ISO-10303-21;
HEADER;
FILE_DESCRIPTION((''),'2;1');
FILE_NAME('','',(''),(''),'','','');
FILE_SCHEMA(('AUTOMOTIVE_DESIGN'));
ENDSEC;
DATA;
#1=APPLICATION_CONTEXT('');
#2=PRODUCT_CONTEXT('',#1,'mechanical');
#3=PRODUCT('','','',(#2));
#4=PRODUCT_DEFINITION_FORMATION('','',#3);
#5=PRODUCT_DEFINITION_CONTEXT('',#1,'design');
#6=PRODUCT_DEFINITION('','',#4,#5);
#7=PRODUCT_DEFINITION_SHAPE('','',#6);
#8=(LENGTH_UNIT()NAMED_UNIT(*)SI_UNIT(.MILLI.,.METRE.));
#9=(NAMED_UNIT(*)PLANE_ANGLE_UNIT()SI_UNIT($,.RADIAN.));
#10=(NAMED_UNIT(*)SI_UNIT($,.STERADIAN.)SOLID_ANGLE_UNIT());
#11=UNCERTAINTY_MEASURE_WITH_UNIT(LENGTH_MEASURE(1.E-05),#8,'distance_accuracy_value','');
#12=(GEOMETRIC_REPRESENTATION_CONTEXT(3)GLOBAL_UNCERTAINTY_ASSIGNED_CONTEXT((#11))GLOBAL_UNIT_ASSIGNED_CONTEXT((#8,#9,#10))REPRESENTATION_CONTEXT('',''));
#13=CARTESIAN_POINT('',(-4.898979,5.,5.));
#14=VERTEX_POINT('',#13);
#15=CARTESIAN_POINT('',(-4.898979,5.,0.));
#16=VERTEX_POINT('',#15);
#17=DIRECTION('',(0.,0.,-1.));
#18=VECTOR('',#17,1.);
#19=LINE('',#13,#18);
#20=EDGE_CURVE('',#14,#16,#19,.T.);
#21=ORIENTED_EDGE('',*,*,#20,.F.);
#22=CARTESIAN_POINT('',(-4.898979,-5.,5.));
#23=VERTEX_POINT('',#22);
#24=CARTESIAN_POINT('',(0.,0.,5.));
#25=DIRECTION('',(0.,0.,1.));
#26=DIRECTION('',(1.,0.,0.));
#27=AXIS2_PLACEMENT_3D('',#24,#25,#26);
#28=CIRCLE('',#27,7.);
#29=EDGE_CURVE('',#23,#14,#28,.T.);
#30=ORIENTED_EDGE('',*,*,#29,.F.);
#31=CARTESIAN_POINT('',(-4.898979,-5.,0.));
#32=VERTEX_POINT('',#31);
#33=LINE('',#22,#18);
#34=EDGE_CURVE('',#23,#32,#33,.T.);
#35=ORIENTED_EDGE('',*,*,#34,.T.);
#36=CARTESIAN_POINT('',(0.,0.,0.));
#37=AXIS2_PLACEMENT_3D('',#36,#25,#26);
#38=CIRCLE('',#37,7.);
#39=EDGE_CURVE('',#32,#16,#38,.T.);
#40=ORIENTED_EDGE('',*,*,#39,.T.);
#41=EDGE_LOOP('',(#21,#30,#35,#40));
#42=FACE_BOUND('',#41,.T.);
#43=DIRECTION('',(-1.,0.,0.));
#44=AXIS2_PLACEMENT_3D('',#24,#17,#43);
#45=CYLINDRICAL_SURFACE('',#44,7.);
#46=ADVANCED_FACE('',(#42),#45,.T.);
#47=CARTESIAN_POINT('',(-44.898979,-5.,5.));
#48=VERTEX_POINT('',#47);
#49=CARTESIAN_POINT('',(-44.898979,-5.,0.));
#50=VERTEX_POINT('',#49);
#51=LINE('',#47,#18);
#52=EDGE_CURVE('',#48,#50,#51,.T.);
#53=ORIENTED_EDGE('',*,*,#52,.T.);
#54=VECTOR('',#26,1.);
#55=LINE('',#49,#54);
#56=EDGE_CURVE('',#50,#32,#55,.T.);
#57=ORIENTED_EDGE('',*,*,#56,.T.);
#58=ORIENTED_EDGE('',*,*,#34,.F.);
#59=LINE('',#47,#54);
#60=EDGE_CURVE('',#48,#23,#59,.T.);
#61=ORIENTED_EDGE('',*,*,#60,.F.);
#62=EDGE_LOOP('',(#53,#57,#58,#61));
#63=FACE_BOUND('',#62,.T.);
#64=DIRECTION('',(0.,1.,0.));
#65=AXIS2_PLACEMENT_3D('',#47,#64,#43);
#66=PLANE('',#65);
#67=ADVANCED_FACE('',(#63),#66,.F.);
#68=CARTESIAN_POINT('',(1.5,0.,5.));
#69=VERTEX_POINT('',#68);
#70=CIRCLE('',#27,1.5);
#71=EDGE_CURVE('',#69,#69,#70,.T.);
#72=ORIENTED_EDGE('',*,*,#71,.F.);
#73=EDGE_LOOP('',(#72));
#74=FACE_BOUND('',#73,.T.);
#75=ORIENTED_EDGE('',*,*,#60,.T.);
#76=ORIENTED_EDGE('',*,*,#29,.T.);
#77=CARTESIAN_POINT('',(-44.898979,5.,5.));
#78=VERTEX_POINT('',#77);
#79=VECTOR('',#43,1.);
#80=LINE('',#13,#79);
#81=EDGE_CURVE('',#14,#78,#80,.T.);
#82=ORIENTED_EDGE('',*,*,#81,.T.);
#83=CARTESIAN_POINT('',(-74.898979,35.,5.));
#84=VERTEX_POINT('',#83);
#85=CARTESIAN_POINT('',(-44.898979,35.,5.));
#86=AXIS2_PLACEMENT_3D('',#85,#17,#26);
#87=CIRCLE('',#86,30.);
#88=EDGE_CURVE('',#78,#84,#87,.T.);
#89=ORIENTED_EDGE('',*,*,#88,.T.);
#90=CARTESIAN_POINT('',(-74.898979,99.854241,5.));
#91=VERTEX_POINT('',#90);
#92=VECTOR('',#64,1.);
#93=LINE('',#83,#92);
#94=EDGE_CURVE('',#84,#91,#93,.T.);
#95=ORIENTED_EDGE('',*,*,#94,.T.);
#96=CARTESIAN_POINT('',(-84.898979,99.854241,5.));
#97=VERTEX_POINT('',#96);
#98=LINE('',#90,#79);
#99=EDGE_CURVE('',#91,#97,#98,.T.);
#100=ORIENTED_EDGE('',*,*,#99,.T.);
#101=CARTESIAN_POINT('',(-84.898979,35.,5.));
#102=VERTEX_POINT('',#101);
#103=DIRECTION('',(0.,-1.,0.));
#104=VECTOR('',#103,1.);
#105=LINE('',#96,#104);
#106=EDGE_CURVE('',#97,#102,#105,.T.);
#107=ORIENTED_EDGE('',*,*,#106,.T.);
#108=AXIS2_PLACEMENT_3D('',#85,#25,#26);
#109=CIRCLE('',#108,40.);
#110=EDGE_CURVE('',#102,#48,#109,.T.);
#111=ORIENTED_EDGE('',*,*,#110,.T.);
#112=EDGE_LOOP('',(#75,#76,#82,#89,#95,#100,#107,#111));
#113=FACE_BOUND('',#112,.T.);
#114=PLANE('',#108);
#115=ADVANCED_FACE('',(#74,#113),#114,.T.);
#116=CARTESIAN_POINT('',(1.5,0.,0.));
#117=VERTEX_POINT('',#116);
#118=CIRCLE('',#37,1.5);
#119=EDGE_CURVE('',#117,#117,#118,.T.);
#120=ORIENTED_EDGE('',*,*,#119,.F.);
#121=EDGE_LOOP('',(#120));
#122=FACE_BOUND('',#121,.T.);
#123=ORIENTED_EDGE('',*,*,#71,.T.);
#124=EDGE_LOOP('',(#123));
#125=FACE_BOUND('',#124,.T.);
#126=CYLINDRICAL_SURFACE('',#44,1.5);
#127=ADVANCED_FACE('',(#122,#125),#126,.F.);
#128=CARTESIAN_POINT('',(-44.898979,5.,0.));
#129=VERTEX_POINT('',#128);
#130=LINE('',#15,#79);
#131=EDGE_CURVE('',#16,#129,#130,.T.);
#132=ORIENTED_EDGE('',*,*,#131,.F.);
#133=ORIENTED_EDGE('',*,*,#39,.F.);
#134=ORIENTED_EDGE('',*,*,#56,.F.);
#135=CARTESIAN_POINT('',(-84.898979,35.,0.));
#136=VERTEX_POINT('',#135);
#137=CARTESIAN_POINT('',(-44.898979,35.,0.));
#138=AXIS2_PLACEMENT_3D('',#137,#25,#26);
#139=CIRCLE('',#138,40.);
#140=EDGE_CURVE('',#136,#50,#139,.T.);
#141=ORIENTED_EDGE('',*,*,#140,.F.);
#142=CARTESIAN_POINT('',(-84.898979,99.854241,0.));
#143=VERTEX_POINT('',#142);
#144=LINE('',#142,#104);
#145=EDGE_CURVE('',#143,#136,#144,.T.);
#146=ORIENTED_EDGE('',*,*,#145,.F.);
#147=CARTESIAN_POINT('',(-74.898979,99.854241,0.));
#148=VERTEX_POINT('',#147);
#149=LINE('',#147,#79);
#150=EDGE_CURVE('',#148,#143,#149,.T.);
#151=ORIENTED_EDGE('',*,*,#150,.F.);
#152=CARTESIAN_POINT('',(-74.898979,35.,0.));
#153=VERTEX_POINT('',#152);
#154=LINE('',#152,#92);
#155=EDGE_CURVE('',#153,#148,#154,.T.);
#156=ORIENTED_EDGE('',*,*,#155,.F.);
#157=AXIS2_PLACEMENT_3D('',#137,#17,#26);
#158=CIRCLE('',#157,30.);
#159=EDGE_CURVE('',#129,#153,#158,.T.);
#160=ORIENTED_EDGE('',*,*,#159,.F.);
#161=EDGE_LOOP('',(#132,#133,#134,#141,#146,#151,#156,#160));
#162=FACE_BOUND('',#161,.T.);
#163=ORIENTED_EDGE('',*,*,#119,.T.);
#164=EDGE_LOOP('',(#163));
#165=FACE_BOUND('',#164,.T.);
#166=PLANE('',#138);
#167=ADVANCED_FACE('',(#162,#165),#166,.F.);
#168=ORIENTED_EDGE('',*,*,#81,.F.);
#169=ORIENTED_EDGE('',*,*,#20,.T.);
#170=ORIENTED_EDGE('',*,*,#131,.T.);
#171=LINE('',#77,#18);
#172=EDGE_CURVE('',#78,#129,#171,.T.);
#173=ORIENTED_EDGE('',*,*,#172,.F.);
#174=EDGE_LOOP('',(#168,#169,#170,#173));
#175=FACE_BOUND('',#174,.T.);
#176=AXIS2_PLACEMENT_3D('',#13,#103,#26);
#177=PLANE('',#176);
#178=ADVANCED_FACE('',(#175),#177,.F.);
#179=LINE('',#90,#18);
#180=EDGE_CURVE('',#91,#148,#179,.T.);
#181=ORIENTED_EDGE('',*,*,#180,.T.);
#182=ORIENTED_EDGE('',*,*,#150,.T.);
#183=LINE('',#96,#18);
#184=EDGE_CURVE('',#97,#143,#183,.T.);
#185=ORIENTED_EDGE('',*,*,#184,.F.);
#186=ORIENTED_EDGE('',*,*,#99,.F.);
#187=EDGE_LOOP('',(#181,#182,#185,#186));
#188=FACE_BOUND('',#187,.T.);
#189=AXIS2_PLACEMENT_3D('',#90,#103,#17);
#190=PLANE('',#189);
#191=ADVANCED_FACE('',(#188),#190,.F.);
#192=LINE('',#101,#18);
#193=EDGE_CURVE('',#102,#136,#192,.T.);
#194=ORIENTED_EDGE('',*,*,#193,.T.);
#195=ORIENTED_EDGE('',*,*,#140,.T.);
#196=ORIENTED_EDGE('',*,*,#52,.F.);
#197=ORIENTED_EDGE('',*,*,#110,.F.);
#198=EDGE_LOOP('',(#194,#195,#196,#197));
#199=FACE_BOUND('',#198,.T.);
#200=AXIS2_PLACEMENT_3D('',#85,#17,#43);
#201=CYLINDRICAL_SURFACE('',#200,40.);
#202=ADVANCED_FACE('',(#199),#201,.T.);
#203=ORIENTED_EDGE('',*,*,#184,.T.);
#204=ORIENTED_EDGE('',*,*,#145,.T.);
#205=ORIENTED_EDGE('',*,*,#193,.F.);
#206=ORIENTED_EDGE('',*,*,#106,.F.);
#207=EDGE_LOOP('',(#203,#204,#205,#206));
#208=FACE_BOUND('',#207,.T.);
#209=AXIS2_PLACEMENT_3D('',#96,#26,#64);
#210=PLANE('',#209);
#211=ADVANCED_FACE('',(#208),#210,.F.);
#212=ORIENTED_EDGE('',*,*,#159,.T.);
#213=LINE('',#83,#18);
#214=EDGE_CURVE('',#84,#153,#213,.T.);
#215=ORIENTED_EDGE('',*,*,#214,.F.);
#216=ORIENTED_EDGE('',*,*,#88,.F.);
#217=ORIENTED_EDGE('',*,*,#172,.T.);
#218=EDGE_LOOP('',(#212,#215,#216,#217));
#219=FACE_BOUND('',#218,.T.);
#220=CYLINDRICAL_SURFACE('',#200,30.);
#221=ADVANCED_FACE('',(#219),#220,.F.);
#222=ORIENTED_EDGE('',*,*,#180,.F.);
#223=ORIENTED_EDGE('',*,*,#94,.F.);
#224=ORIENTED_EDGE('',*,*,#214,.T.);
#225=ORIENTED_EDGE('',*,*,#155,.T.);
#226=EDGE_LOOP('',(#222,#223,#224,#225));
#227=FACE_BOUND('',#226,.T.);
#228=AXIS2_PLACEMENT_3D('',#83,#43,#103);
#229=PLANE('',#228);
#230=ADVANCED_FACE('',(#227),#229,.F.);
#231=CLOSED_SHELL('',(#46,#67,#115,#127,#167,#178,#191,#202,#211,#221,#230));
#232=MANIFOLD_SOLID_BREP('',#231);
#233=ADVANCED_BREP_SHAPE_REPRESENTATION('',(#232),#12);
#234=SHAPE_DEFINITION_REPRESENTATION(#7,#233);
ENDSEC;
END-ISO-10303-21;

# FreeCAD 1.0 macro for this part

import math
import FreeCAD as App
import Part
import Sketcher
from FreeCAD import Vector

doc = App.newDocument("Part")
params = doc.addObject("Spreadsheet::Sheet", "Params")
for row, (alias, value) in enumerate([
    ("sketch1_diameter", "3 mm"),
    ("sketch1_radius", "30 mm"),
    ("sketch1_radius2", "40 mm"),
    ("sketch1_radius3", "7 mm"),
    ("sketch1_width", "40 mm"),
    ("pad1_length", "5 mm"),
], start=1):
    params.set(f"A{row}", alias)
    params.set(f"B{row}", "=" + value)
    params.setAlias(f"B{row}", alias)

body = doc.addObject("PartDesign::Body", "Body")

# Sketch on XY plane
sketch1 = body.newObject("Sketcher::SketchObject", "Sketch")
sketch1.AttachmentSupport = (doc.getObject("XY_Plane"), [""])
sketch1.MapMode = "FlatFace"
sketch1.addGeometry([
    Part.LineSegment(Vector(-4.9, 5, 0), Vector(-44.9, 5, 0)),  # 0
    Part.ArcOfCircle(Part.Circle(Vector(-44.9, 35, 0), Vector(0, 0, 1), 30), math.radians(180), math.radians(270)),  # 1
    Part.LineSegment(Vector(-74.9, 35, 0), Vector(-74.9, 99.9, 0)),  # 2
    Part.LineSegment(Vector(-74.9, 99.9, 0), Vector(-84.9, 99.9, 0)),  # 3
    Part.LineSegment(Vector(-84.9, 99.9, 0), Vector(-84.9, 35, 0)),  # 4
    Part.ArcOfCircle(Part.Circle(Vector(-44.9, 35, 0), Vector(0, 0, 1), 40), math.radians(-180), math.radians(-90)),  # 5
    Part.LineSegment(Vector(-44.9, -5, 0), Vector(-4.9, -5, 0)),  # 6
    Part.ArcOfCircle(Part.Circle(Vector(0, 0, 0), Vector(0, 0, 1), 7), math.radians(-134), math.radians(134)),  # 7
    Part.Circle(Vector(0, 0, 0), Vector(0, 0, 1), 1.5),  # 8
], False)
sketch1.addConstraint([
    Sketcher.Constraint("Tangent", 0, 2, 1, 2),
    Sketcher.Constraint("Tangent", 1, 1, 2, 1),
    Sketcher.Constraint("Coincident", 2, 2, 3, 1),
    Sketcher.Constraint("Coincident", 3, 2, 4, 1),
    Sketcher.Constraint("Tangent", 4, 2, 5, 1),
    Sketcher.Constraint("Tangent", 5, 2, 6, 1),
    Sketcher.Constraint("Coincident", 6, 2, 7, 1),
    Sketcher.Constraint("Coincident", 7, 2, 0, 1),
    Sketcher.Constraint("Horizontal", 0),
    Sketcher.Constraint("Vertical", 2),
    Sketcher.Constraint("Horizontal", 3),
    Sketcher.Constraint("Vertical", 4),
    Sketcher.Constraint("Horizontal", 6),
    Sketcher.Constraint("Coincident", 7, 3, -1, 1),
    Sketcher.Constraint("Coincident", 8, 3, -1, 1),
    Sketcher.Constraint("Coincident", 5, 3, 1, 3),
    Sketcher.Constraint("Vertical", 6, 2, 7, 2),
    Sketcher.Constraint("Diameter", 8, 3.0),
    Sketcher.Constraint("Radius", 1, 30.0),
    Sketcher.Constraint("Radius", 5, 40.0),
    Sketcher.Constraint("Radius", 7, 7.0),
    Sketcher.Constraint("DistanceX", 0, 2, 0, 1, 40.0),
    Sketcher.Constraint("DistanceY", 2, 1, 2, 2, 64.854241),
])
sketch1.setExpression("Constraints[17]", "Params.sketch1_diameter")
sketch1.setExpression("Constraints[18]", "Params.sketch1_radius")
sketch1.setExpression("Constraints[19]", "Params.sketch1_radius2")
sketch1.setExpression("Constraints[20]", "Params.sketch1_radius3")
sketch1.setExpression("Constraints[21]", "Params.sketch1_width")
pad1 = body.newObject("PartDesign::Pad", "Pad")
pad1.Profile = sketch1
pad1.setExpression("Length", "Params.pad1_length")

doc.recompute()
